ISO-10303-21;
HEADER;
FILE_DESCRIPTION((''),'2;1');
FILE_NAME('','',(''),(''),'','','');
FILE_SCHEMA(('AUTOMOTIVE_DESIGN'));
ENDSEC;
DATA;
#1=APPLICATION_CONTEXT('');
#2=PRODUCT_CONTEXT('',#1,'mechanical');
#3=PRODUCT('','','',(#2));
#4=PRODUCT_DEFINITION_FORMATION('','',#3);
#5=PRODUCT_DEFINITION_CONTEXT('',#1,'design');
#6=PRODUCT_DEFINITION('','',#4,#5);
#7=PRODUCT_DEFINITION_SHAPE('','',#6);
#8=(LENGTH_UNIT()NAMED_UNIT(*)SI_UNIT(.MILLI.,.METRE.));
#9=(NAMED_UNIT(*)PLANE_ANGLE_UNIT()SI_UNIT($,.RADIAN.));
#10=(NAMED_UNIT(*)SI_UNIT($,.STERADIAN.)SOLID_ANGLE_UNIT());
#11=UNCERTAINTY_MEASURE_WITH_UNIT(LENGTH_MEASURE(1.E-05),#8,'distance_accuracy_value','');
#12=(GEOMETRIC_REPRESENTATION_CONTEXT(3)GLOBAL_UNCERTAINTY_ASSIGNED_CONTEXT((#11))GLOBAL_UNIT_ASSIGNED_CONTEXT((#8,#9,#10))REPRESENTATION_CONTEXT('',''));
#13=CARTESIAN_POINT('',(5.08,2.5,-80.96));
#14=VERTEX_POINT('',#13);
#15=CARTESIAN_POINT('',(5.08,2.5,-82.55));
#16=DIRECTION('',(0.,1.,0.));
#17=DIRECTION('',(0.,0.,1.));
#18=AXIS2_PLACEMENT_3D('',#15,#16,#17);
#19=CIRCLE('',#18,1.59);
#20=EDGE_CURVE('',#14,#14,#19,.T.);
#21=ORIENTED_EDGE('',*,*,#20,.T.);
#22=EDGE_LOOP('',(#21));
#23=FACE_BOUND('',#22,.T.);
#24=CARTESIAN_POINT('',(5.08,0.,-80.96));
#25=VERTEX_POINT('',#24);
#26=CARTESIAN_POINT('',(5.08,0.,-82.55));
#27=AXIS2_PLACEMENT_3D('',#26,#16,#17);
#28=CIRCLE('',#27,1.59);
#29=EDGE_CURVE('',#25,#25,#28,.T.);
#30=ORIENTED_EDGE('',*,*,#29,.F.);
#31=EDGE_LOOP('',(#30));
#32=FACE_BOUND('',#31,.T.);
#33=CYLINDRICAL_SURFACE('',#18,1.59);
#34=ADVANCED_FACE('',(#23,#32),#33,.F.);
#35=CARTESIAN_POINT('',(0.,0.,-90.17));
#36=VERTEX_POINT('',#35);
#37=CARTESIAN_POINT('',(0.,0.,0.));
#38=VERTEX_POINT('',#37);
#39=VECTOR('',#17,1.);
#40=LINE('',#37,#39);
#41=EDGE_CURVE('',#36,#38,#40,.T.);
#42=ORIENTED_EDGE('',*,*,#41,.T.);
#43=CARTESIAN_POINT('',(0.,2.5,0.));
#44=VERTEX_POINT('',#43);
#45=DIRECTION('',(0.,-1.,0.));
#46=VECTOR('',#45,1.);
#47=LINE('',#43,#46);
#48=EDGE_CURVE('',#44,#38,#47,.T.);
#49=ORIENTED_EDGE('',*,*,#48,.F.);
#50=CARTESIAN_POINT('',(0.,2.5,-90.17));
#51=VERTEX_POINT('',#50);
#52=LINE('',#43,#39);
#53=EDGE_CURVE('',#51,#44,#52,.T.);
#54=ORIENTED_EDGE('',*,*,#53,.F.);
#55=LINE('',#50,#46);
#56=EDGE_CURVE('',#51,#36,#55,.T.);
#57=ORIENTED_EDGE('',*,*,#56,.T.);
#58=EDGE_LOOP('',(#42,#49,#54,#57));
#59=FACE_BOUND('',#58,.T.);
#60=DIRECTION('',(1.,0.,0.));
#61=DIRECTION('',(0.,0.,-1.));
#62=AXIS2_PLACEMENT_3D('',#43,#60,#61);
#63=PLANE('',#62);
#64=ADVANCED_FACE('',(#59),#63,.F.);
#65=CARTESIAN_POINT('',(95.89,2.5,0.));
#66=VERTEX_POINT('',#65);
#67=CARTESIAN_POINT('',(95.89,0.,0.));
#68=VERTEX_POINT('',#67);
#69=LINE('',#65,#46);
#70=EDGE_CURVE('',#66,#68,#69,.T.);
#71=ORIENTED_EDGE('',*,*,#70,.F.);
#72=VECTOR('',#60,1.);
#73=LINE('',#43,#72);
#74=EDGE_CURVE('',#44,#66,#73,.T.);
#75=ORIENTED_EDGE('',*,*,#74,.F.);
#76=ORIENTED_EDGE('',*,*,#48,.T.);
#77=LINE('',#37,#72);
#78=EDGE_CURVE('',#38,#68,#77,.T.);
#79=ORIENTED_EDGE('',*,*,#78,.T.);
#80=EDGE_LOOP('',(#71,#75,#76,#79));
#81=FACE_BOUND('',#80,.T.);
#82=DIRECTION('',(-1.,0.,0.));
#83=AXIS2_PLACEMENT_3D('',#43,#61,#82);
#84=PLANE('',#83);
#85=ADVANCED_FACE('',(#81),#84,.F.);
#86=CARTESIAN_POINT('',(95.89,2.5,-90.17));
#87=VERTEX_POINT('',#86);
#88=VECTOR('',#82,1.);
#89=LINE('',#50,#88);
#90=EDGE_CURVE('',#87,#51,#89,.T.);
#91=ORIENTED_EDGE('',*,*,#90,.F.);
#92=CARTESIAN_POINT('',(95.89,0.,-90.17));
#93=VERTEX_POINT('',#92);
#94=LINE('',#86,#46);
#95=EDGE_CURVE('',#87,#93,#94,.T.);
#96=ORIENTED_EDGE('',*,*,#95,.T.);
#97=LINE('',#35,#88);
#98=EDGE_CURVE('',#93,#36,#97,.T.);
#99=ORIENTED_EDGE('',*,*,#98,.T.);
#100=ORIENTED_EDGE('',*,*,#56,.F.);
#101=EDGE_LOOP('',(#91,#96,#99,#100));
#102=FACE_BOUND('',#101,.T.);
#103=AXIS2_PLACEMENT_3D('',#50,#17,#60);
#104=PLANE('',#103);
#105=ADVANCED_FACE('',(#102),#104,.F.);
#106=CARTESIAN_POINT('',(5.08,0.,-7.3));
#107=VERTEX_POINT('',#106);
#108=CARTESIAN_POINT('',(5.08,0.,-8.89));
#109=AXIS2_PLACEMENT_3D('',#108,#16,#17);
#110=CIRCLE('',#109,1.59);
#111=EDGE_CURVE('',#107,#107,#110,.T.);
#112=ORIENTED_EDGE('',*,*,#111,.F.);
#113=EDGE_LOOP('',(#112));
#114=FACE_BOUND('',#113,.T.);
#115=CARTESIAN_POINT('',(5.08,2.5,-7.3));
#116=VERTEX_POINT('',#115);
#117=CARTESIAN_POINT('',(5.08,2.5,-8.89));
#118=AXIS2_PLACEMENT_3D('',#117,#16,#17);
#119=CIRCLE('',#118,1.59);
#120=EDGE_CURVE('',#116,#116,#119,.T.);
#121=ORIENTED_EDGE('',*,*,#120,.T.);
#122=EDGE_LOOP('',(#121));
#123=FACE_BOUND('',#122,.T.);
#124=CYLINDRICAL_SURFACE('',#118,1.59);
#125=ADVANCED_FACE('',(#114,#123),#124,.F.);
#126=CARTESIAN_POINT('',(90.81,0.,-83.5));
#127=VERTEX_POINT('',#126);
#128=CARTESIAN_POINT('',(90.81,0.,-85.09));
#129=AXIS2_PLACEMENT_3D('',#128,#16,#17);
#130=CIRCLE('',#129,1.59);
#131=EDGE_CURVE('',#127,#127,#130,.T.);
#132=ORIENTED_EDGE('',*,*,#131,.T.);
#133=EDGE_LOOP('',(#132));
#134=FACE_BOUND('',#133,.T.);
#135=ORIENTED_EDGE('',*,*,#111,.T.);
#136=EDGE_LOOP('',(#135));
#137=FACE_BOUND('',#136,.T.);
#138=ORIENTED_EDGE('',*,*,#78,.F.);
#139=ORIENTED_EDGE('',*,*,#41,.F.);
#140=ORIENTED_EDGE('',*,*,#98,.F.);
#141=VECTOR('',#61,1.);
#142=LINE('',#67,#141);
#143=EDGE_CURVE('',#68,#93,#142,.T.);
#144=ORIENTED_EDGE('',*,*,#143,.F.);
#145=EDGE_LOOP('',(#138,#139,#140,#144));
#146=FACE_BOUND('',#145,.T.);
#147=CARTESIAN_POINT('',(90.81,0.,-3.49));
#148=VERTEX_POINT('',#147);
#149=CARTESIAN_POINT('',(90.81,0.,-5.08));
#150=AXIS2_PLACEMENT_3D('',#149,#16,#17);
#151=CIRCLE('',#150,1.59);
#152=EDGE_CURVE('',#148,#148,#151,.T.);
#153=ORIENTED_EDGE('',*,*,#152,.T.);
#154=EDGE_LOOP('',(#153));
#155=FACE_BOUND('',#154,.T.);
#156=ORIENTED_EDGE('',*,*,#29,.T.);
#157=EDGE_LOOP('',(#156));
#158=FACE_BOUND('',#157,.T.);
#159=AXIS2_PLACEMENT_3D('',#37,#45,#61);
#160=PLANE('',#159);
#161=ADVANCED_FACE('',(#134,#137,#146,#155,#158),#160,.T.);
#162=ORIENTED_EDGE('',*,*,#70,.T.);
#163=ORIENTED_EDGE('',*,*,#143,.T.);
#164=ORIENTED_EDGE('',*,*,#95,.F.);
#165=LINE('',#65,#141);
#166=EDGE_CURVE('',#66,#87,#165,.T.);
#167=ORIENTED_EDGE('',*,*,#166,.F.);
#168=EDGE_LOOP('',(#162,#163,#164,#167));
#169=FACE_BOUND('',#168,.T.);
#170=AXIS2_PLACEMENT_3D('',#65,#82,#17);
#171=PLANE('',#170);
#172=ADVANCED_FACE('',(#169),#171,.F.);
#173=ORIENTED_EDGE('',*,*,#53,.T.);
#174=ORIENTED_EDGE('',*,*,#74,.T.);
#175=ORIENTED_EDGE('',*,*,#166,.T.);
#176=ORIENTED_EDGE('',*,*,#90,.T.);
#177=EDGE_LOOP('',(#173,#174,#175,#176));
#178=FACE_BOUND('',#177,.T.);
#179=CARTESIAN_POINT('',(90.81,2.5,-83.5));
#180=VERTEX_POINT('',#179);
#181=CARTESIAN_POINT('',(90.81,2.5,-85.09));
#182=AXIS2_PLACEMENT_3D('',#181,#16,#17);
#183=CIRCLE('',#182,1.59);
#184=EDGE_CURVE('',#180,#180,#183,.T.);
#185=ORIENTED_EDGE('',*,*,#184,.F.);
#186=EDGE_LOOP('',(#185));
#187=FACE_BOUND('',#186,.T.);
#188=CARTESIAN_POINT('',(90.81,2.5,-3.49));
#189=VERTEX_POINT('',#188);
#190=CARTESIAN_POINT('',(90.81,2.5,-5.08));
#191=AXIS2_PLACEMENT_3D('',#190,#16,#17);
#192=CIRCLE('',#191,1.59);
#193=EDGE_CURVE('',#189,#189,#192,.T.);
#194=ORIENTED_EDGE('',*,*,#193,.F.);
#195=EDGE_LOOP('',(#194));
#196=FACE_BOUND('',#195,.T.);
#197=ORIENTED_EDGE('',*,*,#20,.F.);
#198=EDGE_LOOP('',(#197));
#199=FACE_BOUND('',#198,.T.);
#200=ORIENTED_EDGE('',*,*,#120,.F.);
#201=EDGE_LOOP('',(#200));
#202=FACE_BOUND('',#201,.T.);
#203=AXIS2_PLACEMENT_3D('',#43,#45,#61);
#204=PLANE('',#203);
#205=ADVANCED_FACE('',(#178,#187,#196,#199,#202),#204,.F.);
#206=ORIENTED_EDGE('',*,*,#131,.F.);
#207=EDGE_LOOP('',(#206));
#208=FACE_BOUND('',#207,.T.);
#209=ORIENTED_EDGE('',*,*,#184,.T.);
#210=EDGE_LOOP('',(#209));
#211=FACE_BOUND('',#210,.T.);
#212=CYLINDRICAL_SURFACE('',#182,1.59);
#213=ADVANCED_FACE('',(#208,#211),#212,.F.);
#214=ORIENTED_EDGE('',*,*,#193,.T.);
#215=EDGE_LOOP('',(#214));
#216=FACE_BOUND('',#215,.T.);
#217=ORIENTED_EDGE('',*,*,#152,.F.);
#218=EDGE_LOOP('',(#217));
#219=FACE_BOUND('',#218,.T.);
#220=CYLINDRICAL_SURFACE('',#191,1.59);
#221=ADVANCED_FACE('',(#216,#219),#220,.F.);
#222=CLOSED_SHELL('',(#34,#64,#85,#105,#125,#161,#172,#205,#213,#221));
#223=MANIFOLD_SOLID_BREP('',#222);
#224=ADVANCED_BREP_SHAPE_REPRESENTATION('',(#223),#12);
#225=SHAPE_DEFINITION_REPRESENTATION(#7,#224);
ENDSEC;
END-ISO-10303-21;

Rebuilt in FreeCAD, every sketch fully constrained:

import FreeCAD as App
import Part
import Sketcher
from FreeCAD import Vector
Q = App.Units.Quantity

doc = App.newDocument("Part")
body = doc.addObject("PartDesign::Body", "Body")

# Sketch on XZ plane
sketch1 = body.newObject("Sketcher::SketchObject", "Sketch")
sketch1.AttachmentSupport = (doc.getObject("XZ_Plane"), [""])
sketch1.MapMode = "FlatFace"
sketch1.addGeometry([
    Part.LineSegment(Vector(0, -90, 0), Vector(0, 0, 0)),
    Part.LineSegment(Vector(0, 0, 0), Vector(96, 0, 0)),
    Part.LineSegment(Vector(96, 0, 0), Vector(96, -90, 0)),
    Part.LineSegment(Vector(96, -90, 0), Vector(0, -90, 0)),
], False)
sketch1.addConstraint([
    Sketcher.Constraint("Coincident", 0, 2, 1, 1),
    Sketcher.Constraint("Coincident", 1, 2, 2, 1),
    Sketcher.Constraint("Coincident", 2, 2, 3, 1),
    Sketcher.Constraint("Coincident", 3, 2, 0, 1),
    Sketcher.Constraint("Vertical", 0),
    Sketcher.Constraint("Horizontal", 1),
    Sketcher.Constraint("Vertical", 2),
    Sketcher.Constraint("Horizontal", 3),
    Sketcher.Constraint("Coincident", 0, 2, -1, 1),
    Sketcher.Constraint("DistanceX", 1, 1, 1, 2, Q("95.89 mm")),
    Sketcher.Constraint("DistanceY", 0, 1, 0, 2, Q("90.17 mm")),
])
pad1 = body.newObject("PartDesign::Pad", "Pad")
pad1.Profile = sketch1
pad1.Length = 2.5
pad1.Reversed = True

# Sketch on XZ plane
sketch2 = body.newObject("Sketcher::SketchObject", "Sketch001")
sketch2.AttachmentSupport = (doc.getObject("XZ_Plane"), [""])
sketch2.MapMode = "FlatFace"
sketch2.AttachmentOffset = App.Placement(Vector(0, 0, -2.5), App.Rotation())
sketch2.addGeometry([
    Part.Circle(Vector(5.1, -82.5, 0), Vector(0, 0, 1), 1.6),
    Part.Circle(Vector(5.1, -8.9, 0), Vector(0, 0, 1), 1.6),
    Part.Circle(Vector(90.8, -85.1, 0), Vector(0, 0, 1), 1.6),
    Part.Circle(Vector(90.8, -5.1, 0), Vector(0, 0, 1), 1.6),
], False)
sketch2.addConstraint([
    Sketcher.Constraint("Equal", 0, 1),
    Sketcher.Constraint("Equal", 1, 2),
    Sketcher.Constraint("Equal", 2, 3),
    Sketcher.Constraint("Vertical", 0, 3, 1, 3),
    Sketcher.Constraint("Vertical", 2, 3, 3, 3),
    Sketcher.Constraint("Diameter", 0, Q("3.18 mm")),
    Sketcher.Constraint("DistanceY", 2, 3, 1, 3, Q("76.2 mm")),
    Sketcher.Constraint("DistanceX", -1, 1, 0, 3, Q("5.08 mm")),
    Sketcher.Constraint("DistanceY", 0, 3, -1, 1, Q("82.55 mm")),
    Sketcher.Constraint("DistanceY", 1, 3, -1, 1, Q("8.89 mm")),
    Sketcher.Constraint("DistanceX", -1, 1, 2, 3, Q("90.81 mm")),
    Sketcher.Constraint("DistanceY", 3, 3, -1, 1, Q("5.08 mm")),
])
doc.recompute()
hole = body.newObject("PartDesign::Hole", "Hole")
hole.Profile = sketch2
hole.ThreadType = "None"
hole.Diameter = 3.18
hole.DepthType = "ThroughAll"
hole.Reversed = True

doc.recompute()
